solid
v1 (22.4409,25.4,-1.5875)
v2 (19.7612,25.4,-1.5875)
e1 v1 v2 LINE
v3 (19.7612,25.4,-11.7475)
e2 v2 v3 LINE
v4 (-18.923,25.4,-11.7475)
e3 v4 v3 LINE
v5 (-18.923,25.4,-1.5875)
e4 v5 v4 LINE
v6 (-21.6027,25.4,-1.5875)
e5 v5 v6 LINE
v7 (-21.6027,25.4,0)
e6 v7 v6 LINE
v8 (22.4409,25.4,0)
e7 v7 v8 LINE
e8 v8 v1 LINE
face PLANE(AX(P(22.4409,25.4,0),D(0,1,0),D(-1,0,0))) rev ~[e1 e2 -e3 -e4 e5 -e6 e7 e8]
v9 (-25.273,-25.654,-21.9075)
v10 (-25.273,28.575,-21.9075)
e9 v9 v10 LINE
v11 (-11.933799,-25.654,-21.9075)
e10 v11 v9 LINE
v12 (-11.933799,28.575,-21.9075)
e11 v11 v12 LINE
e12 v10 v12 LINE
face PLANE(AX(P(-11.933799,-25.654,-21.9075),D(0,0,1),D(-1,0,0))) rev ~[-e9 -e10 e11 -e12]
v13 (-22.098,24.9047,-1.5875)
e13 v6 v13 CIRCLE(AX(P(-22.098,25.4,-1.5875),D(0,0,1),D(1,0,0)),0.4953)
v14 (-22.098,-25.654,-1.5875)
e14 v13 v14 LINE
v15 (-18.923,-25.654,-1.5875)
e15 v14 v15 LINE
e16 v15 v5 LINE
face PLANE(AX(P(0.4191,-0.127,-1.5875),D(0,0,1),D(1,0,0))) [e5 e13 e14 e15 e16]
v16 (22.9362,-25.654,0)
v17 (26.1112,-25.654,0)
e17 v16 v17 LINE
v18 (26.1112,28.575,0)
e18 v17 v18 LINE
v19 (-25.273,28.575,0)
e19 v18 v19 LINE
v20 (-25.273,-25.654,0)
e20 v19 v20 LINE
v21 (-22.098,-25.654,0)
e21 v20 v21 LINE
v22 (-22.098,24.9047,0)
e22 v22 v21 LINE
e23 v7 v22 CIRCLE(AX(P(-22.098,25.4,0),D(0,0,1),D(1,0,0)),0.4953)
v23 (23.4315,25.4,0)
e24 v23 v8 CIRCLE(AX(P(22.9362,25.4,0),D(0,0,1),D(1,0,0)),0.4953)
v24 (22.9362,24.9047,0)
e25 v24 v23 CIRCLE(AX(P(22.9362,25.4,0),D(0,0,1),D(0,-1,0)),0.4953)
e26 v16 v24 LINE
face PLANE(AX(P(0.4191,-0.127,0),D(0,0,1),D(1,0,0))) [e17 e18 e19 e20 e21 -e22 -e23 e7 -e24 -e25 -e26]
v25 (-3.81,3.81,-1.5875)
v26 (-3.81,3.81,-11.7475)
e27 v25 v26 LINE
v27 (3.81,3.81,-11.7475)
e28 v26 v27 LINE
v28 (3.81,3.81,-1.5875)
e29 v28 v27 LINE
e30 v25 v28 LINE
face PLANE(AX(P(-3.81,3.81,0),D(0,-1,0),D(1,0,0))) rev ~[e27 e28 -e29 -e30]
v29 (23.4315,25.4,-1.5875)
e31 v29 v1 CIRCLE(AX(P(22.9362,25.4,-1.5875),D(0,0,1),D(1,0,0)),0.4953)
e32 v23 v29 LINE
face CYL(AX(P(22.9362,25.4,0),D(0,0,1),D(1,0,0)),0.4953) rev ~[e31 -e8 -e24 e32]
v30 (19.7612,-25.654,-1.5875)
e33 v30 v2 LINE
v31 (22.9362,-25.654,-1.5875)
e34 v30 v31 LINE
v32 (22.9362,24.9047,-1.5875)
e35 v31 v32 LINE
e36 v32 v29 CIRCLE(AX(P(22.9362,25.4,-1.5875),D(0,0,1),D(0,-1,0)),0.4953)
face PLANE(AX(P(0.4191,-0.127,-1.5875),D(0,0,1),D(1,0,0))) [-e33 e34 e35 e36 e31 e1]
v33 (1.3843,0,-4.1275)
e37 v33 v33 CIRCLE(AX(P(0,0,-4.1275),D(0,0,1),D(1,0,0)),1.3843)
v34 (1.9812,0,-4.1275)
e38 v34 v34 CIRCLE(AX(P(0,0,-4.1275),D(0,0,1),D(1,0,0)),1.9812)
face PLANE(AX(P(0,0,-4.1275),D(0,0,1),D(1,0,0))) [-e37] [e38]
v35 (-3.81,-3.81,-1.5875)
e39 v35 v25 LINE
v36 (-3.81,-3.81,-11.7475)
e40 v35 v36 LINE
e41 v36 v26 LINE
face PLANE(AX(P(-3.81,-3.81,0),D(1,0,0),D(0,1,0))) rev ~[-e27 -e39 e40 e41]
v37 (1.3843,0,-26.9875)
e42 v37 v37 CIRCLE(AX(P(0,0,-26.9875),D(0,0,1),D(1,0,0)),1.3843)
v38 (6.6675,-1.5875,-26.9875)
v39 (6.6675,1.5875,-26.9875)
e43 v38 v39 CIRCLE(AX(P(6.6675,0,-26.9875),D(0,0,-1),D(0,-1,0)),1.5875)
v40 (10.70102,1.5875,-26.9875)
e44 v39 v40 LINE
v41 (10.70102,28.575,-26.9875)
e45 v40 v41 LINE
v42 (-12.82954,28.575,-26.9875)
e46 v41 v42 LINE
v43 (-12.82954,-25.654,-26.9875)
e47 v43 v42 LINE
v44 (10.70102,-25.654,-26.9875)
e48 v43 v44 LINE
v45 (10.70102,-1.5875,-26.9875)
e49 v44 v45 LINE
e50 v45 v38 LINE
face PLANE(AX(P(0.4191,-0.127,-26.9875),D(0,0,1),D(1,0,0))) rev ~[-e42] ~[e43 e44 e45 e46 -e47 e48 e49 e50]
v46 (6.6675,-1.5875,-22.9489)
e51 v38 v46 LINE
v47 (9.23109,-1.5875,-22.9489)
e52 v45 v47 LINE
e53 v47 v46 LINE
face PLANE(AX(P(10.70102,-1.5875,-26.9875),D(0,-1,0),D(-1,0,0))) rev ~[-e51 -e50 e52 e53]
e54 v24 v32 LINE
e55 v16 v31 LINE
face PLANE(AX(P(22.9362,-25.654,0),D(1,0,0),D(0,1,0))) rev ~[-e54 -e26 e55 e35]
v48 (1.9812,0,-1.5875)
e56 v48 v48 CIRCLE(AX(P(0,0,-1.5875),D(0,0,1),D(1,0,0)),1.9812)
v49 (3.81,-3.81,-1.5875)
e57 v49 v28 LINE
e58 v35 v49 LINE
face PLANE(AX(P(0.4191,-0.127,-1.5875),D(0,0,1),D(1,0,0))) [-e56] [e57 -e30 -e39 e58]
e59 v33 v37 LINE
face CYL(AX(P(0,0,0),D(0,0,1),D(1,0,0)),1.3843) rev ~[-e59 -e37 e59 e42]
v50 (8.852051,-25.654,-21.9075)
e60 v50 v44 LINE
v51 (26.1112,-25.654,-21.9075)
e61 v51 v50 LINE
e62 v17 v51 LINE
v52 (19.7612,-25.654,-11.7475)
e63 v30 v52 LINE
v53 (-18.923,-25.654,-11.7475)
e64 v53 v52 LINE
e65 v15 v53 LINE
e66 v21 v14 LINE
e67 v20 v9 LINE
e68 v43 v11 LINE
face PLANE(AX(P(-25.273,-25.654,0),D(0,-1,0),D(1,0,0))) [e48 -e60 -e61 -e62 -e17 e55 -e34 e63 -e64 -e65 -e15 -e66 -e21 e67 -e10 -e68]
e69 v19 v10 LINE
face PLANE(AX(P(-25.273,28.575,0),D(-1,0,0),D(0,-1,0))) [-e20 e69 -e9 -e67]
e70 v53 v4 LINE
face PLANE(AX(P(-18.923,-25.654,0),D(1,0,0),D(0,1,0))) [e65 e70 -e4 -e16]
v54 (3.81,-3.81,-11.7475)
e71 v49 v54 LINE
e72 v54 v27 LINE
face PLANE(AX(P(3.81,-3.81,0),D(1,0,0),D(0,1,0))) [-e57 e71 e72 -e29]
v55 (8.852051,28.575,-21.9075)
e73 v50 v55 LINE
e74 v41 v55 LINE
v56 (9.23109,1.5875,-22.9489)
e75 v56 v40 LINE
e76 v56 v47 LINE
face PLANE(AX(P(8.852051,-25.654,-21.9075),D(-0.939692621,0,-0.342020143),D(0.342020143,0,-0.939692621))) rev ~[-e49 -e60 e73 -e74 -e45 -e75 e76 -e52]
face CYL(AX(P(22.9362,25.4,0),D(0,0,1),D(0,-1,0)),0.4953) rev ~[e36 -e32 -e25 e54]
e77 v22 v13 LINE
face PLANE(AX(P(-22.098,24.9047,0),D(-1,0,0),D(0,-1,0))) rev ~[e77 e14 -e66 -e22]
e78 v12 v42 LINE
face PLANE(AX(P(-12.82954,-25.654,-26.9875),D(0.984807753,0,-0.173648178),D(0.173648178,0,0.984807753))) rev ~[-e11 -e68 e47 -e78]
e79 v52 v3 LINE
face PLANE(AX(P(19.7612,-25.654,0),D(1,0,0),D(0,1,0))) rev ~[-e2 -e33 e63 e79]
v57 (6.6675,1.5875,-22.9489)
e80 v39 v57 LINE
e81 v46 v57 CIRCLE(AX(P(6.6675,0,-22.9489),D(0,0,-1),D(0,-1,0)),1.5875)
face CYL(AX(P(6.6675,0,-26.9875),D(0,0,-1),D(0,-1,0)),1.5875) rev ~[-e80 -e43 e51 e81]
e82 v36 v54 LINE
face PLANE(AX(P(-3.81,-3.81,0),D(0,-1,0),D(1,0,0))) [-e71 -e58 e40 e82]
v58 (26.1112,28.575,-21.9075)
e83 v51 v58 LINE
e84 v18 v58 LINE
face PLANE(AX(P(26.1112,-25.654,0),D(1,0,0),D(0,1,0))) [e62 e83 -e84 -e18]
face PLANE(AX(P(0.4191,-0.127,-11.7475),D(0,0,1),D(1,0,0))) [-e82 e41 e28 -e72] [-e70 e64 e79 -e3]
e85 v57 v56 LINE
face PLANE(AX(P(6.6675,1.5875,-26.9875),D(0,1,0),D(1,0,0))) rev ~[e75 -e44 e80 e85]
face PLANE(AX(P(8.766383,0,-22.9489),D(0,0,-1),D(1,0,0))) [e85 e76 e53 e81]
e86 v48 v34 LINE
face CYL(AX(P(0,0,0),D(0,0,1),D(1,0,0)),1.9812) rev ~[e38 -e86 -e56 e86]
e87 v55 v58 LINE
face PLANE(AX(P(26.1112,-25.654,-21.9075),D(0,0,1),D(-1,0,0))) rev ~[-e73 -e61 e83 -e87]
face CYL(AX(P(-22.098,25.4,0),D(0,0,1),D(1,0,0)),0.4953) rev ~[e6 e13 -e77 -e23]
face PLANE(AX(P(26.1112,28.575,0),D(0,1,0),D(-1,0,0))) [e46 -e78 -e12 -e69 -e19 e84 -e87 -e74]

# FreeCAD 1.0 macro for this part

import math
import FreeCAD as App
import Part
import Sketcher
Q = App.Units.Quantity


def add_polygon(sketch, points):
    """Adds a closed chain of lines whose ends are joined by coincident constraints."""
    first, n = sketch.GeometryCount, len(points)
    for a, b in zip(points, points[1:] + points[:1]):
        sketch.addGeometry(Part.LineSegment(App.Vector(*a, 0), App.Vector(*b, 0)), False)
    for i in range(n):
        sketch.addConstraint(Sketcher.Constraint("Coincident", first + i, 2, first + (i + 1) % n, 1))

doc = App.newDocument("Part")
body = doc.addObject("PartDesign::Body", "Body")

# Sketch on XY plane
sketch1 = body.newObject("Sketcher::SketchObject", "Sketch")
sketch1.AttachmentSupport = (doc.getObject("XY_Plane"), [""])
sketch1.MapMode = "FlatFace"
add_polygon(sketch1, [(26.1, -25.7), (26.1, 28.6), (-25.3, 28.6), (-25.3, -25.7)])  # lines 0-3
sketch1.addGeometry(Part.Circle(App.Vector(0, 0, 0), App.Vector(0, 0, 1), 1.4), False)  # 4
sketch1.addConstraint(Sketcher.Constraint("Vertical", 0))
sketch1.addConstraint(Sketcher.Constraint("Horizontal", 1))
sketch1.addConstraint(Sketcher.Constraint("Vertical", 2))
sketch1.addConstraint(Sketcher.Constraint("Horizontal", 3))
sketch1.addConstraint(Sketcher.Constraint("Coincident", 4, 3, -1, 1))
sketch1.addConstraint(Sketcher.Constraint("Diameter", 4, Q("0.109 in")))
sketch1.addConstraint(Sketcher.Constraint("DistanceX", 1, 2, 1, 1, Q("2.023 in")))
sketch1.addConstraint(Sketcher.Constraint("DistanceY", 0, 1, 0, 2, Q("2.135 in")))
sketch1.addConstraint(Sketcher.Constraint("DistanceY", 2, 2, -1, 1, Q("1.01 in")))
sketch1.addConstraint(Sketcher.Constraint("DistanceX", -1, 1, 0, 2, Q("1.028 in")))
pad1 = body.newObject("PartDesign::Pad", "Pad")
pad1.Profile = sketch1
pad1.Length = Q("1.0625 in")
pad1.Reversed = True

# Sketch on XY plane
sketch2 = body.newObject("Sketcher::SketchObject", "Sketch001")
sketch2.AttachmentSupport = (doc.getObject("XY_Plane"), [""])
sketch2.MapMode = "FlatFace"
sketch2.addGeometry(Part.LineSegment(App.Vector(-22.1, 24.9, 0), App.Vector(-22.1, -25.65, 0)), False)
sketch2.addGeometry(Part.LineSegment(App.Vector(-22.1, -25.65, 0), App.Vector(22.94, -25.65, 0)), False)
sketch2.addGeometry(Part.LineSegment(App.Vector(22.94, -25.65, 0), App.Vector(22.94, 24.9, 0)), False)
sketch2.addGeometry(Part.ArcOfCircle(Part.Circle(App.Vector(22.94, 25.4, 0), App.Vector(0, 0, 1), 0.5), math.radians(-90), math.radians(0)), False)
sketch2.addGeometry(Part.ArcOfCircle(Part.Circle(App.Vector(22.94, 25.4, 0), App.Vector(0, 0, 1), 0.5), math.radians(0), math.radians(180)), False)
sketch2.addGeometry(Part.LineSegment(App.Vector(22.44, 25.4, 0), App.Vector(-21.6, 25.4, 0)), False)
sketch2.addGeometry(Part.ArcOfCircle(Part.Circle(App.Vector(-22.1, 25.4, 0), App.Vector(0, 0, 1), 0.5), math.radians(0), math.radians(270)), False)
sketch2.addGeometry(Part.Circle(App.Vector(0, 0, 0), App.Vector(0, 0, 1), 1.38), False)
sketch2.addConstraint(Sketcher.Constraint("Coincident", 0, 2, 1, 1))
sketch2.addConstraint(Sketcher.Constraint("Coincident", 1, 2, 2, 1))
sketch2.addConstraint(Sketcher.Constraint("Coincident", 2, 2, 3, 1))
sketch2.addConstraint(Sketcher.Constraint("Tangent", 3, 2, 4, 1))
sketch2.addConstraint(Sketcher.Constraint("Coincident", 4, 2, 5, 1))
sketch2.addConstraint(Sketcher.Constraint("Coincident", 5, 2, 6, 1))
sketch2.addConstraint(Sketcher.Constraint("Coincident", 6, 2, 0, 1))
sketch2.addConstraint(Sketcher.Constraint("Vertical", 0))
sketch2.addConstraint(Sketcher.Constraint("Horizontal", 1))
sketch2.addConstraint(Sketcher.Constraint("Vertical", 2))
sketch2.addConstraint(Sketcher.Constraint("Horizontal", 5))
sketch2.addConstraint(Sketcher.Constraint("Coincident", 7, 3, -1, 1))
sketch2.addConstraint(Sketcher.Constraint("Equal", 3, 4))
sketch2.addConstraint(Sketcher.Constraint("Equal", 4, 6))
sketch2.addConstraint(Sketcher.Constraint("Horizontal", 4, 3, 6, 3))
sketch2.addConstraint(Sketcher.Constraint("Horizontal", 6, 3, 3, 2))
sketch2.addConstraint(Sketcher.Constraint("Horizontal", 3, 2, 4, 2))
sketch2.addConstraint(Sketcher.Constraint("Vertical", 6, 3, 0, 2))
sketch2.addConstraint(Sketcher.Constraint("Vertical", 4, 3, 1, 2))
sketch2.addConstraint(Sketcher.Constraint("Diameter", 7, Q("0.109 in")))
sketch2.addConstraint(Sketcher.Constraint("DistanceY", -1, 1, 3, 3, Q("1 in")))
sketch2.addConstraint(Sketcher.Constraint("Radius", 3, Q("0.0195 in")))
sketch2.addConstraint(Sketcher.Constraint("DistanceX", 1, 1, 1, 2, Q("1.773 in")))
sketch2.addConstraint(Sketcher.Constraint("DistanceX", 6, 3, -1, 1, Q("0.87 in")))
sketch2.addConstraint(Sketcher.Constraint("DistanceY", 0, 2, -1, 1, Q("1.01 in")))
pocket1 = body.newObject("PartDesign::Pocket", "Pocket")
pocket1.Profile = sketch2
pocket1.Length = Q("0.0625 in")

# Sketch on XY plane
sketch3 = body.newObject("Sketcher::SketchObject", "Sketch002")
sketch3.AttachmentSupport = (doc.getObject("XY_Plane"), [""])
sketch3.MapMode = "FlatFace"
add_polygon(sketch3, [(-19, 25), (-19, -26), (20, -26), (20, 25)])  # lines 0-3
add_polygon(sketch3, [(4, -4), (-4, -4), (-4, 4), (4, 4)])  # lines 4-7
sketch3.addConstraint(Sketcher.Constraint("Vertical", 0))
sketch3.addConstraint(Sketcher.Constraint("Horizontal", 1))
sketch3.addConstraint(Sketcher.Constraint("Vertical", 2))
sketch3.addConstraint(Sketcher.Constraint("Horizontal", 3))
sketch3.addConstraint(Sketcher.Constraint("Horizontal", 4))
sketch3.addConstraint(Sketcher.Constraint("Vertical", 5))
sketch3.addConstraint(Sketcher.Constraint("Horizontal", 6))
sketch3.addConstraint(Sketcher.Constraint("Vertical", 7))
sketch3.addConstraint(Sketcher.Constraint("Symmetric", 4, 2, 6, 2, -1, 1))
sketch3.addConstraint(Sketcher.Constraint("Equal", 6, 5))
sketch3.addConstraint(Sketcher.Constraint("DistanceX", 4, 2, 4, 1, Q("0.3 in")))
sketch3.addConstraint(Sketcher.Constraint("DistanceY", -1, 1, 2, 2, Q("1 in")))
sketch3.addConstraint(Sketcher.Constraint("DistanceY", 0, 2, 0, 1, Q("2.01 in")))
sketch3.addConstraint(Sketcher.Constraint("DistanceX", 1, 1, 1, 2, Q("1.523 in")))
sketch3.addConstraint(Sketcher.Constraint("DistanceX", 0, 2, -1, 1, Q("0.745 in")))
pocket2 = body.newObject("PartDesign::Pocket", "Pocket001")
pocket2.Profile = sketch3
pocket2.Length = Q("0.4625 in")

# Sketch on XY plane
sketch4 = body.newObject("Sketcher::SketchObject", "Sketch003")
sketch4.AttachmentSupport = (doc.getObject("XY_Plane"), [""])
sketch4.MapMode = "FlatFace"
sketch4.addGeometry(Part.Circle(App.Vector(0, 0, 0), App.Vector(0, 0, 1), 2), False)
sketch4.addGeometry(Part.Circle(App.Vector(0, 0, 0), App.Vector(0, 0, 1), 1.4), False)
sketch4.addConstraint(Sketcher.Constraint("Coincident", 0, 3, -1, 1))
sketch4.addConstraint(Sketcher.Constraint("Coincident", 1, 3, -1, 1))
sketch4.addConstraint(Sketcher.Constraint("Diameter", 0, Q("0.156 in")))
sketch4.addConstraint(Sketcher.Constraint("Diameter", 1, Q("0.109 in")))
pocket3 = body.newObject("PartDesign::Pocket", "Pocket002")
pocket3.Profile = sketch4
pocket3.Length = Q("0.1625 in")

# Sketch on XZ plane
sketch5 = body.newObject("Sketcher::SketchObject", "Sketch004")
sketch5.AttachmentSupport = (doc.getObject("XZ_Plane"), [""])
sketch5.MapMode = "FlatFace"
sketch5.AttachmentOffset = App.Placement(App.Vector(0, 0, 1.01 * 25.4), App.Rotation())
add_polygon(sketch5, [(-12, -22), (-25, -22), (-25, -27), (-13, -27)])  # lines 0-3
add_polygon(sketch5, [(26, -27), (26, -22), (9, -22), (11, -27)])  # lines 4-7
sketch5.addConstraint(Sketcher.Constraint("Horizontal", 0))
sketch5.addConstraint(Sketcher.Constraint("Vertical", 1))
sketch5.addConstraint(Sketcher.Constraint("Horizontal", 2))
sketch5.addConstraint(Sketcher.Constraint("Vertical", 4))
sketch5.addConstraint(Sketcher.Constraint("Horizontal", 5))
sketch5.addConstraint(Sketcher.Constraint("Horizontal", 7))
sketch5.addConstraint(Sketcher.Constraint("Horizontal", 3, 2, 4, 2))
sketch5.addConstraint(Sketcher.Constraint("Horizontal", 2, 2, 6, 2))
sketch5.addConstraint(Sketcher.Constraint("DistanceY", 1, 2, 1, 1, Q("0.2 in")))
sketch5.addConstraint(Sketcher.Constraint("Angle", 3, Q("80 deg")))
sketch5.addConstraint(Sketcher.Constraint("Angle", 6, Q("-70 deg")))
sketch5.addConstraint(Sketcher.Constraint("DistanceX", 2, 1, 2, 2, Q("0.4899 in")))
sketch5.addConstraint(Sketcher.Constraint("DistanceX", 7, 1, 7, 2, Q("0.6067 in")))
sketch5.addConstraint(Sketcher.Constraint("DistanceX", 0, 2, -1, 1, Q("0.995 in")))
sketch5.addConstraint(Sketcher.Constraint("DistanceY", 1, 2, -1, 1, Q("1.0625 in")))
sketch5.addConstraint(Sketcher.Constraint("DistanceX", -1, 1, 4, 2, Q("1.028 in")))
pocket4 = body.newObject("PartDesign::Pocket", "Pocket003")
pocket4.Profile = sketch5
pocket4.Type = "ThroughAll"

# Sketch on XY plane
sketch6 = body.newObject("Sketcher::SketchObject", "Sketch005")
sketch6.AttachmentSupport = (doc.getObject("XY_Plane"), [""])
sketch6.MapMode = "FlatFace"
sketch6.AttachmentOffset = App.Placement(App.Vector(0, 0, -1.0625 * 25.4), App.Rotation())
sketch6.addGeometry(Part.LineSegment(App.Vector(6.7, 1.6, 0), App.Vector(10.7, 1.6, 0)), False)
sketch6.addGeometry(Part.LineSegment(App.Vector(10.7, 1.6, 0), App.Vector(10.7, -1.6, 0)), False)
sketch6.addGeometry(Part.LineSegment(App.Vector(10.7, -1.6, 0), App.Vector(6.7, -1.6, 0)), False)
sketch6.addGeometry(Part.ArcOfCircle(Part.Circle(App.Vector(6.7, 0, 0), App.Vector(0, 0, 1), 1.6), math.radians(90), math.radians(270)), False)
sketch6.addConstraint(Sketcher.Constraint("Coincident", 0, 2, 1, 1))
sketch6.addConstraint(Sketcher.Constraint("Coincident", 1, 2, 2, 1))
sketch6.addConstraint(Sketcher.Constraint("Tangent", 2, 2, 3, 2))
sketch6.addConstraint(Sketcher.Constraint("Tangent", 3, 1, 0, 1))
sketch6.addConstraint(Sketcher.Constraint("Horizontal", 0))
sketch6.addConstraint(Sketcher.Constraint("Vertical", 1))
sketch6.addConstraint(Sketcher.Constraint("Horizontal", 2))
sketch6.addConstraint(Sketcher.Constraint("PointOnObject", 3, 3, -1))
sketch6.addConstraint(Sketcher.Constraint("Radius", 3, Q("0.0625 in")))
sketch6.addConstraint(Sketcher.Constraint("DistanceX", 0, 1, 0, 2, Q("0.1588 in")))
sketch6.addConstraint(Sketcher.Constraint("DistanceX", -1, 1, 3, 3, Q("0.2625 in")))
pocket5 = body.newObject("PartDesign::Pocket", "Pocket004")
pocket5.Profile = sketch6
pocket5.Length = Q("0.159 in")
pocket5.Reversed = True

doc.recompute()
